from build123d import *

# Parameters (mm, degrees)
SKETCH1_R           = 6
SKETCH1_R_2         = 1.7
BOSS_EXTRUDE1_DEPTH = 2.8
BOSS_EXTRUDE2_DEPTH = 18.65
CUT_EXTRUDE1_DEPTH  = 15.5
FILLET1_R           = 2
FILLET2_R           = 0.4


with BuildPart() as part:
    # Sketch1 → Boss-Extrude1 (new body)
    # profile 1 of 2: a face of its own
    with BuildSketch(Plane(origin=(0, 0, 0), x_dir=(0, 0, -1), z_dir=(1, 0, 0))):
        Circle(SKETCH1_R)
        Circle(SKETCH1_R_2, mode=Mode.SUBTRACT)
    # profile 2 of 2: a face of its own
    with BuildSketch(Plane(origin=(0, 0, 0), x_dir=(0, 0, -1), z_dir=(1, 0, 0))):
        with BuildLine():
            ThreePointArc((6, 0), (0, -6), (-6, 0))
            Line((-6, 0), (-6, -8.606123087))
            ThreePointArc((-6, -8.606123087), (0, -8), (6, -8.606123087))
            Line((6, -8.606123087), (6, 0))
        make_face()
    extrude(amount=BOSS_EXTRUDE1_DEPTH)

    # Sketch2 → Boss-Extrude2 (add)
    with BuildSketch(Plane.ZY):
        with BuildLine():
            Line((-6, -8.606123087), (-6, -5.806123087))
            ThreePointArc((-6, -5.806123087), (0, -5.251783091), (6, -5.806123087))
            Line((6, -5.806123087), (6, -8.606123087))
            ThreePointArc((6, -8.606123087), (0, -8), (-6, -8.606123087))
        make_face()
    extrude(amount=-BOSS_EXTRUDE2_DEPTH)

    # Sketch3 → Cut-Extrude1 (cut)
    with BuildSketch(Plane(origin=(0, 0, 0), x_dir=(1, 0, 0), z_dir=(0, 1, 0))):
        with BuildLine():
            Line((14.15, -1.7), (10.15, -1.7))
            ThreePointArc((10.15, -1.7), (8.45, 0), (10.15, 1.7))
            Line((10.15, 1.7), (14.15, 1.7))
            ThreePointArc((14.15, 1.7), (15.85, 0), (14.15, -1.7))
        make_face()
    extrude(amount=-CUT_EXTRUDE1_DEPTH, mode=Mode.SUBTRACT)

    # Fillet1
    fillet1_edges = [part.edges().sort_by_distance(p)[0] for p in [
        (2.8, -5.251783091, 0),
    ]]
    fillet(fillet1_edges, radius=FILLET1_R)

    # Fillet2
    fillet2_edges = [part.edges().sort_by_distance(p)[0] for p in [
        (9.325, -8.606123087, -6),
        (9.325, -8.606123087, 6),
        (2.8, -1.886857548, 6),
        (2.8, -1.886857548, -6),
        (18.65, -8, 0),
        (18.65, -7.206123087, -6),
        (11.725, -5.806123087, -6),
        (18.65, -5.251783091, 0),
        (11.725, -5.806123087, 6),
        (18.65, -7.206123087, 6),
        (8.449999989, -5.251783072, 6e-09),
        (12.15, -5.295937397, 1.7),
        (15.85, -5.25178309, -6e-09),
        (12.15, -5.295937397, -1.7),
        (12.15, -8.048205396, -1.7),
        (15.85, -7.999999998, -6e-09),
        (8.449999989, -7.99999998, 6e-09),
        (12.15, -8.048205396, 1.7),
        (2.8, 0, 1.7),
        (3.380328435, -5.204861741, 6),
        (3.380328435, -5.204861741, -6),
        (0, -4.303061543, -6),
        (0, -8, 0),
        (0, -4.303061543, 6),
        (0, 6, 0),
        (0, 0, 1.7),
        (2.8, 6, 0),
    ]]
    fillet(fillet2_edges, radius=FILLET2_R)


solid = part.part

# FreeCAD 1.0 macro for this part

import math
import FreeCAD as App
import Part
import Sketcher

V = App.Vector


def edges_at(feature, points):
    """Names of the edges that pass closest to the given points."""
    edges = feature.Shape.Edges
    near = lambda p: min(range(len(edges)), key=lambda i: edges[i].distToShape(Part.Vertex(*p))[0])
    return sorted({f"Edge{near(p) + 1}" for p in points})

doc = App.newDocument("Part")
body = doc.addObject("PartDesign::Body", "Body")

# Sketch on YZ plane
sketch1 = body.newObject("Sketcher::SketchObject", "Sketch")
sketch1.AttachmentSupport = (doc.getObject("YZ_Plane"), [""])
sketch1.MapMode = "FlatFace"
sketch1.addGeometry(Part.ArcOfCircle(Part.Circle(V(0, 0, 0), V(0, 0, 1), 6), math.radians(-90), math.radians(90)), False)
sketch1.addGeometry(Part.LineSegment(V(0, 6, 0), V(-8.6, 6, 0)), False)
sketch1.addGeometry(Part.ArcOfCircle(Part.Circle(V(-38, 0, 0), V(0, 0, 1), 30), math.radians(-12), math.radians(12)), False)
sketch1.addGeometry(Part.LineSegment(V(-8.6, -6, 0), V(0, -6, 0)), False)
sketch1.addGeometry(Part.Circle(V(0, 0, 0), V(0, 0, 1), 1.7), False)
sketch1.addConstraint(Sketcher.Constraint("Tangent", 0, 2, 1, 1))
sketch1.addConstraint(Sketcher.Constraint("Coincident", 1, 2, 2, 2))
sketch1.addConstraint(Sketcher.Constraint("Coincident", 2, 1, 3, 1))
sketch1.addConstraint(Sketcher.Constraint("Tangent", 3, 2, 0, 1))
sketch1.addConstraint(Sketcher.Constraint("Horizontal", 1))
sketch1.addConstraint(Sketcher.Constraint("Horizontal", 3))
sketch1.addConstraint(Sketcher.Constraint("Coincident", 0, 3, -1, 1))
sketch1.addConstraint(Sketcher.Constraint("Coincident", 4, 3, -1, 1))
sketch1.addConstraint(Sketcher.Constraint("PointOnObject", 2, 3, -1))
sketch1.addConstraint(Sketcher.Constraint("Radius", 0, 6.0))
sketch1.addConstraint(Sketcher.Constraint("Radius", 2, 30.0))
sketch1.addConstraint(Sketcher.Constraint("Diameter", 4, 3.4))
sketch1.addConstraint(Sketcher.Constraint("DistanceX", 2, 3, -1, 1, 38.0))
pad1 = body.newObject("PartDesign::Pad", "Pad")
pad1.Profile = sketch1
pad1.Length = 2.8

# Sketch on YZ plane
sketch2 = body.newObject("Sketcher::SketchObject", "Sketch001")
sketch2.AttachmentSupport = (doc.getObject("YZ_Plane"), [""])
sketch2.MapMode = "FlatFace"
sketch2.addGeometry(Part.LineSegment(V(-5.8, -6, 0), V(-8.6, -6, 0)), False)
sketch2.addGeometry(Part.ArcOfCircle(Part.Circle(V(-38, 0, 0), V(0, 0, 1), 30), math.radians(-12), math.radians(12)), False)
sketch2.addGeometry(Part.LineSegment(V(-8.6, 6, 0), V(-5.8, 6, 0)), False)
sketch2.addGeometry(Part.ArcOfCircle(Part.Circle(V(-38, 0, 0), V(0, 0, 1), 32.7), math.radians(-11), math.radians(11)), False)
sketch2.addConstraint(Sketcher.Constraint("Coincident", 0, 2, 1, 1))
sketch2.addConstraint(Sketcher.Constraint("Coincident", 1, 2, 2, 1))
sketch2.addConstraint(Sketcher.Constraint("Coincident", 2, 2, 3, 2))
sketch2.addConstraint(Sketcher.Constraint("Coincident", 3, 1, 0, 1))
sketch2.addConstraint(Sketcher.Constraint("Horizontal", 0))
sketch2.addConstraint(Sketcher.Constraint("Horizontal", 2))
sketch2.addConstraint(Sketcher.Constraint("Coincident", 3, 3, 1, 3))
sketch2.addConstraint(Sketcher.Constraint("Symmetric", 0, 2, 1, 2, -1))
sketch2.addConstraint(Sketcher.Constraint("Radius", 1, 30.0))
sketch2.addConstraint(Sketcher.Constraint("DistanceX", 0, 2, 0, 1, 2.8))
sketch2.addConstraint(Sketcher.Constraint("DistanceX", 1, 3, -1, 1, 38.0))
sketch2.addConstraint(Sketcher.Constraint("DistanceY", 0, 2, -1, 1, 6.0))
pad2 = body.newObject("PartDesign::Pad", "Pad001")
pad2.Profile = sketch2
pad2.Length = 18.65

# Sketch on XZ plane
sketch3 = body.newObject("Sketcher::SketchObject", "Sketch002")
sketch3.AttachmentSupport = (doc.getObject("XZ_Plane"), [""])
sketch3.MapMode = "FlatFace"
sketch3.addGeometry(Part.LineSegment(V(10.2, 1.7, 0), V(14.2, 1.7, 0)), False)
sketch3.addGeometry(Part.ArcOfCircle(Part.Circle(V(14.2, 0, 0), V(0, 0, 1), 1.7), math.radians(-90), math.radians(90)), False)
sketch3.addGeometry(Part.LineSegment(V(14.2, -1.7, 0), V(10.2, -1.7, 0)), False)
sketch3.addGeometry(Part.ArcOfCircle(Part.Circle(V(10.2, 0, 0), V(0, 0, 1), 1.7), math.radians(90), math.radians(270)), False)
sketch3.addConstraint(Sketcher.Constraint("Tangent", 0, 2, 1, 2))
sketch3.addConstraint(Sketcher.Constraint("Tangent", 1, 1, 2, 1))
sketch3.addConstraint(Sketcher.Constraint("Tangent", 2, 2, 3, 2))
sketch3.addConstraint(Sketcher.Constraint("Tangent", 3, 1, 0, 1))
sketch3.addConstraint(Sketcher.Constraint("Horizontal", 0))
sketch3.addConstraint(Sketcher.Constraint("Horizontal", 2))
sketch3.addConstraint(Sketcher.Constraint("PointOnObject", 1, 3, -1))
sketch3.addConstraint(Sketcher.Constraint("Radius", 1, 1.7))
sketch3.addConstraint(Sketcher.Constraint("DistanceX", 0, 1, 0, 2, 4.0))
sketch3.addConstraint(Sketcher.Constraint("DistanceX", -1, 1, 1, 3, 14.15))
pocket1 = body.newObject("PartDesign::Pocket", "Pocket")
pocket1.Profile = sketch3
pocket1.Length = 15.5
pocket1.Reversed = True
doc.recompute()

fillet = body.newObject("PartDesign::Fillet", "Fillet")
fillet.Base = (pocket1, edges_at(pocket1, [(2.8, -5.252, 0)]))
fillet.Radius = 2
doc.recompute()

fillet2 = body.newObject("PartDesign::Fillet", "Fillet001")
fillet2.Base = (fillet, edges_at(fillet, [
    (9.325, -8.606, -6),
    (9.325, -8.606, 6),
    (2.8, -1.887, 6),
    (2.8, -1.887, -6),
    (18.65, -8, 0),
    (18.65, -7.206, -6),
    (11.725, -5.806, -6),
    (18.65, -5.252, 0),
    (11.725, -5.806, 6),
    (18.65, -7.206, 6),
    (8.45, -5.252, 0),
    (12.15, -5.296, 1.7),
    (15.85, -5.252, 0),
    (12.15, -5.296, -1.7),
    (12.15, -8.048, -1.7),
    (15.85, -8, 0),
    (8.45, -8, 0),
    (12.15, -8.048, 1.7),
    (2.8, 0, 1.7),
    (3.38, -5.205, 6),
    (3.38, -5.205, -6),
    (0, -4.303, -6),
    (0, -8, 0),
    (0, -4.303, 6),
    (0, 6, 0),
    (0, 0, 1.7),
    (2.8, 6, 0),
]))
fillet2.Radius = 0.4

doc.recompute()
